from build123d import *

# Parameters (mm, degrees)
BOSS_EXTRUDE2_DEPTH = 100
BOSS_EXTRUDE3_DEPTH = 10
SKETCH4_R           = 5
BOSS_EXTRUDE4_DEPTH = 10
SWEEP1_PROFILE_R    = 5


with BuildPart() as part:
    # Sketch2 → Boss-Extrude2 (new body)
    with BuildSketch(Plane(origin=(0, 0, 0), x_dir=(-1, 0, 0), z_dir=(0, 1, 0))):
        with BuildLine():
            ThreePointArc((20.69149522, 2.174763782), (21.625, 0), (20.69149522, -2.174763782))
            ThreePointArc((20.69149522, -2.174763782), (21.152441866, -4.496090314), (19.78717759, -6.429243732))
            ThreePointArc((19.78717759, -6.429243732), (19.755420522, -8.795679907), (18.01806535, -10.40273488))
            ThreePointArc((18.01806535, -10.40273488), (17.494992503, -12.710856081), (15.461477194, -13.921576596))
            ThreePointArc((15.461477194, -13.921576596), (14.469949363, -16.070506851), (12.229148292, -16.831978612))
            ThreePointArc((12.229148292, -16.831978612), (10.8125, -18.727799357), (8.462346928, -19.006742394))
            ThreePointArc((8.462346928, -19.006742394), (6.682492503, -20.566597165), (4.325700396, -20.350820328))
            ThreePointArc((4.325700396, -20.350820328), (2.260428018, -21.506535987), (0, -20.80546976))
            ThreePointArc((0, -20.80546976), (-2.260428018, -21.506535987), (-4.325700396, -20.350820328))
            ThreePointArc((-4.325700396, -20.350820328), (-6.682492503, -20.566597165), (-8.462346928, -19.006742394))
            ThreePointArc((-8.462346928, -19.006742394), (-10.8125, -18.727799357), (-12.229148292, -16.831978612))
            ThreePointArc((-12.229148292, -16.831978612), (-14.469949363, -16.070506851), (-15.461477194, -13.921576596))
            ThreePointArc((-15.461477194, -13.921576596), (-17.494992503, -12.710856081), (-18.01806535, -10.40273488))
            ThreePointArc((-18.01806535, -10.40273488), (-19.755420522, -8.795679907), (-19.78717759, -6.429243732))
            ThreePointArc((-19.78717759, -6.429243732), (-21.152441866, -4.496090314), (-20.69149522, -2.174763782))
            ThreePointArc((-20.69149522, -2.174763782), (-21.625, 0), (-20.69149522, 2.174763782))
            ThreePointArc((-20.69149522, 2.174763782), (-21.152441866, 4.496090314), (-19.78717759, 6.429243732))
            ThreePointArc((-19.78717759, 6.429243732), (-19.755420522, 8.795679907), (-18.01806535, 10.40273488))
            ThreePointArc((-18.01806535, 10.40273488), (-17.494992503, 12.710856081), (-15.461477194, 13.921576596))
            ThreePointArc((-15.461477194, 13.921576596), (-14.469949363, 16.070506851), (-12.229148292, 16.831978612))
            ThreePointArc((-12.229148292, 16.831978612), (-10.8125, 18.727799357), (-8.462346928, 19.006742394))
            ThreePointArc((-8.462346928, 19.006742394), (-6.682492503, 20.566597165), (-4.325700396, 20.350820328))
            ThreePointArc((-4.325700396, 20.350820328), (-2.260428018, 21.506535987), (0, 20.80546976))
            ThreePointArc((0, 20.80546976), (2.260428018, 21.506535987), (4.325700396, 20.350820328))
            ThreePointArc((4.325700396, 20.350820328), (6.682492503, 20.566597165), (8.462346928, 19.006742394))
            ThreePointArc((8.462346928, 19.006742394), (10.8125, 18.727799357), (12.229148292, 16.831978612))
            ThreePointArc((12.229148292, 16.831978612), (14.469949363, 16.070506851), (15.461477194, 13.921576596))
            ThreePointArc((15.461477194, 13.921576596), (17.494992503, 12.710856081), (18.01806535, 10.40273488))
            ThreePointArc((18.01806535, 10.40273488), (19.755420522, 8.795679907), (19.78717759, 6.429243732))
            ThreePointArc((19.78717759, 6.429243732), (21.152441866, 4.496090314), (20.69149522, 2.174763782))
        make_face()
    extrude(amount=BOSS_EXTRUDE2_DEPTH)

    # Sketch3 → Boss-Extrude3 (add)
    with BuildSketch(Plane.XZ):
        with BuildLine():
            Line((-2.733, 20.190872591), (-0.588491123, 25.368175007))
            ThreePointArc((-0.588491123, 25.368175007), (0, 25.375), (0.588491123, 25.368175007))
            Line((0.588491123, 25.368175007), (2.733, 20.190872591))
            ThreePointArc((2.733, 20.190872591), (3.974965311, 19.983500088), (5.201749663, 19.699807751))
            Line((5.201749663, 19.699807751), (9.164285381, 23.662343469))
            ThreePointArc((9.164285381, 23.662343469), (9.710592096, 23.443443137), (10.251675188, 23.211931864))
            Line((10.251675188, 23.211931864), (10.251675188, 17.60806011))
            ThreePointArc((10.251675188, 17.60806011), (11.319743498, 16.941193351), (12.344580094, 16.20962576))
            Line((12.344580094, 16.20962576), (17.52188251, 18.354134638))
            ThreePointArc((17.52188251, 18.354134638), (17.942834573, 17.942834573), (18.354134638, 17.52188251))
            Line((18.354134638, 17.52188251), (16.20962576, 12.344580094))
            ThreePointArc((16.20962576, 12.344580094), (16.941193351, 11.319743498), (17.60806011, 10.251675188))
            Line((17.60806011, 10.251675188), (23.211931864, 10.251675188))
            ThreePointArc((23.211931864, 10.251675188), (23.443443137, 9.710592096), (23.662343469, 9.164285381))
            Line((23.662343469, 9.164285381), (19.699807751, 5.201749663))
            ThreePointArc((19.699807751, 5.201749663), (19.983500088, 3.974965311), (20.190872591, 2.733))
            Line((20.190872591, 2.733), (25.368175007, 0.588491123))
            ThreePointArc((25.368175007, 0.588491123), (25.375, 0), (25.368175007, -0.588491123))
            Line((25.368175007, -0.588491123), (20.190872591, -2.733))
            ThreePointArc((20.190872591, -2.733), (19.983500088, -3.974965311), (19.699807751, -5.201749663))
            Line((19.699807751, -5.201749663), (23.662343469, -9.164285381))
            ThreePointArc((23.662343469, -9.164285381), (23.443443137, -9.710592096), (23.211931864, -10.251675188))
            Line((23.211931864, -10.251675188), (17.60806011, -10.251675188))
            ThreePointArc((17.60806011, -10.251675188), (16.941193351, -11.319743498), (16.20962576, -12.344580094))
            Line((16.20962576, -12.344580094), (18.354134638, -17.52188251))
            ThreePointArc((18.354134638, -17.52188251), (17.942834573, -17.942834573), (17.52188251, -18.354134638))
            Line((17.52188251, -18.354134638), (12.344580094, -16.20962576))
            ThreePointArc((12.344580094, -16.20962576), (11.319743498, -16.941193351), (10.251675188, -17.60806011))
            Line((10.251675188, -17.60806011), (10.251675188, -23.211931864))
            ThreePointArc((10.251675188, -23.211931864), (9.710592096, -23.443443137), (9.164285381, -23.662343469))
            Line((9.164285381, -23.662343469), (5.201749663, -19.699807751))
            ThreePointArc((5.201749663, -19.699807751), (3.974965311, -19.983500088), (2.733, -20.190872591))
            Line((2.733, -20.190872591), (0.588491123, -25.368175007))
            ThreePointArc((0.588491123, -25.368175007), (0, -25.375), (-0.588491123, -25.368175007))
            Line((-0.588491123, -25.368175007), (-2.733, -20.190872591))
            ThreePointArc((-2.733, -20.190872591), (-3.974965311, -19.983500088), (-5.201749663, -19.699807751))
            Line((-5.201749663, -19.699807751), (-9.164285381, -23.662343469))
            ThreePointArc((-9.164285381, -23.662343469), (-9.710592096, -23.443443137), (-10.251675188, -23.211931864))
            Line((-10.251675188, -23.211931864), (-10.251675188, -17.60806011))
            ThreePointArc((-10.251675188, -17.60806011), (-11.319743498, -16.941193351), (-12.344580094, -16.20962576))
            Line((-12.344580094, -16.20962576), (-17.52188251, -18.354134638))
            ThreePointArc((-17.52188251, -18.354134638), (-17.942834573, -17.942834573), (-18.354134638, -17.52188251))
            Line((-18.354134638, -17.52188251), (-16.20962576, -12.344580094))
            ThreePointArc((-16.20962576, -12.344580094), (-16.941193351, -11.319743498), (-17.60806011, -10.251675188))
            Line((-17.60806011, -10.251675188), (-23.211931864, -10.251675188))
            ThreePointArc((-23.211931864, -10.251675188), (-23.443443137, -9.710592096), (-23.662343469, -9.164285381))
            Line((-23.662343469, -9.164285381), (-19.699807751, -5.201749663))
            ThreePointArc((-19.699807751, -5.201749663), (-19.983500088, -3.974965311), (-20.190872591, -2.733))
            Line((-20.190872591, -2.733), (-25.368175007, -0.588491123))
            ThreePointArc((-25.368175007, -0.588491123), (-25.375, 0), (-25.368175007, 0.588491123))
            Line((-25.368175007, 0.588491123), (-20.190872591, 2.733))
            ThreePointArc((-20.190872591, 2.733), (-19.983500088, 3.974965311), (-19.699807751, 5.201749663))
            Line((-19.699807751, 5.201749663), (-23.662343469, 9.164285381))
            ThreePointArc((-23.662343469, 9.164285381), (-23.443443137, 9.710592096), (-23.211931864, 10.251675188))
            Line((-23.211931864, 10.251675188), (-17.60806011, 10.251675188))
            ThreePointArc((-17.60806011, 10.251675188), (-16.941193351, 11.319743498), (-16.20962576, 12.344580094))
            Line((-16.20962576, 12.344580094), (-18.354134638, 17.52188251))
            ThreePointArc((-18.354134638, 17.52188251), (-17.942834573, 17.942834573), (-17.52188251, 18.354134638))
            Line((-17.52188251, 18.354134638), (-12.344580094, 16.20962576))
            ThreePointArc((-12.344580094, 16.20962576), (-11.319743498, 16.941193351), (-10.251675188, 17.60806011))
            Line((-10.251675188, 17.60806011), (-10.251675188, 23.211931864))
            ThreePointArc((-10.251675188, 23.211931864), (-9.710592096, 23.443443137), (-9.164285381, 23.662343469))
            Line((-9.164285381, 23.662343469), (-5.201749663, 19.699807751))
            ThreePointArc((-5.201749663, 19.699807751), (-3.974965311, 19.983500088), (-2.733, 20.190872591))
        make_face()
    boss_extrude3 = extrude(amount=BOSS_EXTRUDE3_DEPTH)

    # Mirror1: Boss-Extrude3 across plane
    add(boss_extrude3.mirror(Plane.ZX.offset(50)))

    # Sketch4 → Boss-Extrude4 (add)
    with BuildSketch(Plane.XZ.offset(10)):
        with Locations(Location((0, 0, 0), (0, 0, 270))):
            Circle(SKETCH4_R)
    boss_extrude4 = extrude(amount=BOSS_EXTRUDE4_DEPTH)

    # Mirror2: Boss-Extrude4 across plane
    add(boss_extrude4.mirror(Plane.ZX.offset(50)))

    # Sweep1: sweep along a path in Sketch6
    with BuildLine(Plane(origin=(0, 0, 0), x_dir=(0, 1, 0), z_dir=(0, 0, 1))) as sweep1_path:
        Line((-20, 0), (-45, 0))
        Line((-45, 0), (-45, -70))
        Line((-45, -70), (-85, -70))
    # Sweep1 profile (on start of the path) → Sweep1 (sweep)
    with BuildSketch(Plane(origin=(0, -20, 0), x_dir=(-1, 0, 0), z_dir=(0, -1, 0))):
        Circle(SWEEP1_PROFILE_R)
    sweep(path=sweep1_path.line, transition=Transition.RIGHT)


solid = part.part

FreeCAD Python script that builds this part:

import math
import FreeCAD as App
import Part
import Sketcher
Q = App.Units.Quantity

doc = App.newDocument("Part")
body = doc.addObject("PartDesign::Body", "Body")

# Sketch on XZ plane
sketch1 = body.newObject("Sketcher::SketchObject", "Sketch")
sketch1.AttachmentSupport = (doc.getObject("XZ_Plane"), [""])
sketch1.MapMode = "FlatFace"
sketch1.addGeometry([
    Part.ArcOfCircle(Part.Circle(App.Vector(-18.625, 0, 0), App.Vector(0, 0, 1), 3), math.radians(133.537702), math.radians(226.462298)),  # 0
    Part.ArcOfCircle(Part.Circle(App.Vector(-18.217999, 3.872355, 0), App.Vector(0, 0, 1), 3), math.radians(121.537702), math.radians(214.462298)),  # 1
    Part.ArcOfCircle(Part.Circle(App.Vector(-17.014784, 7.57547, 0), App.Vector(0, 0, 1), 3), math.radians(109.537702), math.radians(202.462298)),  # 2
    Part.ArcOfCircle(Part.Circle(App.Vector(-15.067942, 10.9475, 0), App.Vector(0, 0, 1), 3), math.radians(97.537702), math.radians(190.462298)),  # 3
    Part.ArcOfCircle(Part.Circle(App.Vector(-12.462558, 13.841072, 0), App.Vector(0, 0, 1), 3), math.radians(85.537702), math.radians(178.462298)),  # 4
    Part.ArcOfCircle(Part.Circle(App.Vector(-9.3125, 16.129723, 0), App.Vector(0, 0, 1), 3), math.radians(73.537702), math.radians(166.462298)),  # 5
    Part.ArcOfCircle(Part.Circle(App.Vector(-5.755442, 17.713428, 0), App.Vector(0, 0, 1), 3), math.radians(61.537702), math.radians(154.462298)),  # 6
    Part.ArcOfCircle(Part.Circle(App.Vector(-1.946843, 18.52297, 0), App.Vector(0, 0, 1), 3), math.radians(49.537702), math.radians(142.462298)),  # 7
    Part.ArcOfCircle(Part.Circle(App.Vector(1.946843, 18.52297, 0), App.Vector(0, 0, 1), 3), math.radians(37.537702), math.radians(130.462298)),  # 8
    Part.ArcOfCircle(Part.Circle(App.Vector(5.755442, 17.713428, 0), App.Vector(0, 0, 1), 3), math.radians(25.537702), math.radians(118.462298)),  # 9
    Part.ArcOfCircle(Part.Circle(App.Vector(9.3125, 16.129723, 0), App.Vector(0, 0, 1), 3), math.radians(13.537702), math.radians(106.462298)),  # 10
    Part.ArcOfCircle(Part.Circle(App.Vector(12.462558, 13.841072, 0), App.Vector(0, 0, 1), 3), math.radians(1.537702), math.radians(94.462298)),  # 11
    Part.ArcOfCircle(Part.Circle(App.Vector(15.067942, 10.9475, 0), App.Vector(0, 0, 1), 3), math.radians(-10.462298), math.radians(82.462298)),  # 12
    Part.ArcOfCircle(Part.Circle(App.Vector(17.014784, 7.57547, 0), App.Vector(0, 0, 1), 3), math.radians(-22.462298), math.radians(70.462298)),  # 13
    Part.ArcOfCircle(Part.Circle(App.Vector(18.217999, 3.872355, 0), App.Vector(0, 0, 1), 3), math.radians(-34.462298), math.radians(58.462298)),  # 14
    Part.ArcOfCircle(Part.Circle(App.Vector(18.625, 0, 0), App.Vector(0, 0, 1), 3), math.radians(-46.462298), math.radians(46.462298)),  # 15
    Part.ArcOfCircle(Part.Circle(App.Vector(18.217999, -3.872355, 0), App.Vector(0, 0, 1), 3), math.radians(-58.462298), math.radians(34.462298)),  # 16
    Part.ArcOfCircle(Part.Circle(App.Vector(17.014784, -7.57547, 0), App.Vector(0, 0, 1), 3), math.radians(-70.462298), math.radians(22.462298)),  # 17
    Part.ArcOfCircle(Part.Circle(App.Vector(15.067942, -10.9475, 0), App.Vector(0, 0, 1), 3), math.radians(-82.462298), math.radians(10.462298)),  # 18
    Part.ArcOfCircle(Part.Circle(App.Vector(12.462558, -13.841072, 0), App.Vector(0, 0, 1), 3), math.radians(-94.462298), math.radians(-1.537702)),  # 19
    Part.ArcOfCircle(Part.Circle(App.Vector(9.3125, -16.129723, 0), App.Vector(0, 0, 1), 3), math.radians(-106.462298), math.radians(-13.537702)),  # 20
    Part.ArcOfCircle(Part.Circle(App.Vector(5.755442, -17.713428, 0), App.Vector(0, 0, 1), 3), math.radians(-118.462298), math.radians(-25.537702)),  # 21
    Part.ArcOfCircle(Part.Circle(App.Vector(1.946843, -18.52297, 0), App.Vector(0, 0, 1), 3), math.radians(-130.462298), math.radians(-37.537702)),  # 22
    Part.ArcOfCircle(Part.Circle(App.Vector(-1.946843, -18.52297, 0), App.Vector(0, 0, 1), 3), math.radians(-142.462298), math.radians(-49.537702)),  # 23
    Part.ArcOfCircle(Part.Circle(App.Vector(-5.755442, -17.713428, 0), App.Vector(0, 0, 1), 3), math.radians(-154.462298), math.radians(-61.537702)),  # 24
    Part.ArcOfCircle(Part.Circle(App.Vector(-9.3125, -16.129723, 0), App.Vector(0, 0, 1), 3), math.radians(-166.462298), math.radians(-73.537702)),  # 25
    Part.ArcOfCircle(Part.Circle(App.Vector(-12.462558, -13.841072, 0), App.Vector(0, 0, 1), 3), math.radians(-178.462298), math.radians(-85.537702)),  # 26
    Part.ArcOfCircle(Part.Circle(App.Vector(-15.067942, -10.9475, 0), App.Vector(0, 0, 1), 3), math.radians(169.537702), math.radians(262.462298)),  # 27
    Part.ArcOfCircle(Part.Circle(App.Vector(-17.014784, -7.57547, 0), App.Vector(0, 0, 1), 3), math.radians(157.537702), math.radians(250.462298)),  # 28
    Part.ArcOfCircle(Part.Circle(App.Vector(-18.217999, -3.872355, 0), App.Vector(0, 0, 1), 3), math.radians(145.537702), math.radians(238.462298)),  # 29
], False)
sketch1.addConstraint([
    Sketcher.Constraint("Coincident", 0, 1, 1, 2),
    Sketcher.Constraint("Coincident", 1, 1, 2, 2),
    Sketcher.Constraint("Coincident", 2, 1, 3, 2),
    Sketcher.Constraint("Coincident", 3, 1, 4, 2),
    Sketcher.Constraint("Coincident", 4, 1, 5, 2),
    Sketcher.Constraint("Coincident", 5, 1, 6, 2),
    Sketcher.Constraint("Coincident", 6, 1, 7, 2),
    Sketcher.Constraint("Coincident", 7, 1, 8, 2),
    Sketcher.Constraint("Coincident", 8, 1, 9, 2),
    Sketcher.Constraint("Coincident", 9, 1, 10, 2),
    Sketcher.Constraint("Coincident", 10, 1, 11, 2),
    Sketcher.Constraint("Coincident", 11, 1, 12, 2),
    Sketcher.Constraint("Coincident", 12, 1, 13, 2),
    Sketcher.Constraint("Coincident", 13, 1, 14, 2),
    Sketcher.Constraint("Coincident", 14, 1, 15, 2),
    Sketcher.Constraint("Coincident", 15, 1, 16, 2),
    Sketcher.Constraint("Coincident", 16, 1, 17, 2),
    Sketcher.Constraint("Coincident", 17, 1, 18, 2),
    Sketcher.Constraint("Coincident", 18, 1, 19, 2),
    Sketcher.Constraint("Coincident", 19, 1, 20, 2),
    Sketcher.Constraint("Coincident", 20, 1, 21, 2),
    Sketcher.Constraint("Coincident", 21, 1, 22, 2),
    Sketcher.Constraint("Coincident", 22, 1, 23, 2),
    Sketcher.Constraint("Coincident", 23, 1, 24, 2),
    Sketcher.Constraint("Coincident", 24, 1, 25, 2),
    Sketcher.Constraint("Coincident", 25, 1, 26, 2),
    Sketcher.Constraint("Coincident", 26, 1, 27, 2),
    Sketcher.Constraint("Coincident", 27, 1, 28, 2),
    Sketcher.Constraint("Coincident", 28, 1, 29, 2),
    Sketcher.Constraint("Coincident", 29, 1, 0, 2),
    Sketcher.Constraint("Equal", 0, 1),
    Sketcher.Constraint("Equal", 1, 2),
    Sketcher.Constraint("Equal", 2, 3),
    Sketcher.Constraint("Equal", 3, 4),
    Sketcher.Constraint("Equal", 4, 5),
    Sketcher.Constraint("Equal", 5, 6),
    Sketcher.Constraint("Equal", 6, 7),
    Sketcher.Constraint("Equal", 7, 8),
    Sketcher.Constraint("Equal", 8, 9),
    Sketcher.Constraint("Equal", 9, 10),
    Sketcher.Constraint("Equal", 10, 11),
    Sketcher.Constraint("Equal", 11, 12),
    Sketcher.Constraint("Equal", 12, 13),
    Sketcher.Constraint("Equal", 13, 14),
    Sketcher.Constraint("Equal", 14, 15),
    Sketcher.Constraint("Equal", 15, 16),
    Sketcher.Constraint("Equal", 16, 17),
    Sketcher.Constraint("Equal", 17, 18),
    Sketcher.Constraint("Equal", 18, 19),
    Sketcher.Constraint("Equal", 19, 20),
    Sketcher.Constraint("Equal", 20, 21),
    Sketcher.Constraint("Equal", 21, 22),
    Sketcher.Constraint("Equal", 22, 23),
    Sketcher.Constraint("Equal", 23, 24),
    Sketcher.Constraint("Equal", 24, 25),
    Sketcher.Constraint("Equal", 25, 26),
    Sketcher.Constraint("Equal", 26, 27),
    Sketcher.Constraint("Equal", 27, 28),
    Sketcher.Constraint("Equal", 28, 29),
    Sketcher.Constraint("Symmetric", 0, 3, 15, 3, -1, 1),
    Sketcher.Constraint("Symmetric", 1, 3, 16, 3, -1, 1),
    Sketcher.Constraint("Symmetric", 2, 3, 17, 3, -1, 1),
    Sketcher.Constraint("Symmetric", 3, 3, 18, 3, -1, 1),
    Sketcher.Constraint("Symmetric", 4, 3, 19, 3, -1, 1),
    Sketcher.Constraint("Symmetric", 5, 3, 20, 3, -1, 1),
    Sketcher.Constraint("Symmetric", 6, 3, 21, 3, -1, 1),
    Sketcher.Constraint("Symmetric", 7, 3, 22, 3, -1, 1),
    Sketcher.Constraint("Symmetric", 8, 3, 23, 3, -1, 1),
    Sketcher.Constraint("Symmetric", 9, 3, 24, 3, -1, 1),
    Sketcher.Constraint("Symmetric", 10, 3, 25, 3, -1, 1),
    Sketcher.Constraint("Symmetric", 11, 3, 26, 3, -1, 1),
    Sketcher.Constraint("Symmetric", 12, 3, 27, 3, -1, 1),
    Sketcher.Constraint("Symmetric", 13, 3, 28, 3, -1, 1),
    Sketcher.Constraint("Symmetric", 14, 3, 29, 3, -1, 1),
    Sketcher.Constraint("Symmetric", 7, 3, 8, 3, -2),
    Sketcher.Constraint("Symmetric", 6, 3, 9, 3, -2),
    Sketcher.Constraint("Symmetric", 5, 3, 10, 3, -2),
    Sketcher.Constraint("Symmetric", 4, 3, 11, 3, -2),
    Sketcher.Constraint("Symmetric", 3, 3, 12, 3, -2),
    Sketcher.Constraint("Symmetric", 2, 3, 13, 3, -2),
    Sketcher.Constraint("Symmetric", 1, 3, 14, 3, -2),
    Sketcher.Constraint("PointOnObject", 0, 3, -1),
    Sketcher.Constraint("Radius", 0, Q("3 mm")),
    Sketcher.Constraint("DistanceX", 0, 3, -1, 1, Q("18.625 mm")),
    Sketcher.Constraint("DistanceX", 1, 3, -1, 1, Q("18.217999 mm")),
    Sketcher.Constraint("DistanceX", 4, 3, 9, 3, Q("18.217999 mm")),
    Sketcher.Constraint("DistanceX", 5, 3, 10, 3, Q("18.625 mm")),
    Sketcher.Constraint("DistanceY", -1, 1, 3, 3, Q("10.9475 mm")),
    Sketcher.Constraint("DistanceX", 6, 1, -1, 1, Q("4.3257 mm")),
    Sketcher.Constraint("DistanceX", 3, 3, 6, 3, Q("9.3125 mm")),
    Sketcher.Constraint("DistanceX", 6, 3, 7, 3, Q("3.808599 mm")),
    Sketcher.Constraint("DistanceY", 2, 3, 7, 3, Q("10.9475 mm")),
    Sketcher.Constraint("DistanceX", 4, 1, 5, 1, Q("3.766801 mm")),
    Sketcher.Constraint("DistanceY", 8, 3, 7, 1, Q("2.282499 mm")),
    Sketcher.Constraint("DistanceY", -1, 1, 2, 3, Q("7.57547 mm")),
    Sketcher.Constraint("DistanceX", 4, 1, -1, 1, Q("12.229148 mm")),
    Sketcher.Constraint("DistanceX", 2, 3, 7, 3, Q("15.067942 mm")),
    Sketcher.Constraint("DistanceY", 16, 3, 14, 3, Q("7.74471 mm")),
])
pad1 = body.newObject("PartDesign::Pad", "Pad")
pad1.Profile = sketch1
pad1.Length = 100
pad1.Reversed = True

# Sketch on XZ plane
sketch2 = body.newObject("Sketcher::SketchObject", "Sketch001")
sketch2.AttachmentSupport = (doc.getObject("XZ_Plane"), [""])
sketch2.MapMode = "FlatFace"
sketch2.addGeometry([
    Part.LineSegment(App.Vector(-0.588491, 25.368175, 0), App.Vector(-2.733, 20.190873, 0)),  # 0
    Part.ArcOfCircle(Part.Circle(App.Vector(0, 0, 0), App.Vector(0, 0, 1), 20.375), math.radians(97.708602), math.radians(104.791398)),  # 1
    Part.LineSegment(App.Vector(-5.20175, 19.699808, 0), App.Vector(-9.164285, 23.662343, 0)),  # 2
    Part.ArcOfCircle(Part.Circle(App.Vector(0.000001, -0.000002, 0), App.Vector(0, 0, 1), 25.375002), math.radians(111.17109), math.radians(113.828909)),  # 3
    Part.LineSegment(App.Vector(-10.251675, 23.211932, 0), App.Vector(-10.251675, 17.60806, 0)),  # 4
    Part.ArcOfCircle(Part.Circle(App.Vector(0, 0, 0), App.Vector(0, 0, 1), 20.375), math.radians(120.208602), math.radians(127.291398)),  # 5
    Part.LineSegment(App.Vector(-12.34458, 16.209626, 0), App.Vector(-17.521883, 18.354135, 0)),  # 6
    Part.ArcOfCircle(Part.Circle(App.Vector(-0.000001, 0.000001, 0), App.Vector(0, 0, 1), 25.374998), math.radians(133.67109), math.radians(136.32891)),  # 7
    Part.LineSegment(App.Vector(-18.354135, 17.521883, 0), App.Vector(-16.209626, 12.34458, 0)),  # 8
    Part.ArcOfCircle(Part.Circle(App.Vector(0, 0, 0), App.Vector(0, 0, 1), 20.375), math.radians(142.708602), math.radians(149.791398)),  # 9
    Part.LineSegment(App.Vector(-17.60806, 10.251675, 0), App.Vector(-23.211932, 10.251675, 0)),  # 10
    Part.ArcOfCircle(Part.Circle(App.Vector(0.000002, -0.000001, 0), App.Vector(0, 0, 1), 25.375002), math.radians(156.171091), math.radians(158.82891)),  # 11
    Part.LineSegment(App.Vector(-23.662343, 9.164285, 0), App.Vector(-19.699808, 5.20175, 0)),  # 12
    Part.ArcOfCircle(Part.Circle(App.Vector(0, 0, 0), App.Vector(0, 0, 1), 20.375), math.radians(165.208602), math.radians(172.291398)),  # 13
    Part.LineSegment(App.Vector(-20.190873, 2.733, 0), App.Vector(-25.368175, 0.588491, 0)),  # 14
    Part.ArcOfCircle(Part.Circle(App.Vector(-0.000001, 0, 0), App.Vector(0, 0, 1), 25.374999), math.radians(178.67109), math.radians(181.32891)),  # 15
    Part.LineSegment(App.Vector(-25.368175, -0.588491, 0), App.Vector(-20.190873, -2.733, 0)),  # 16
    Part.ArcOfCircle(Part.Circle(App.Vector(0, 0, 0), App.Vector(0, 0, 1), 20.375), math.radians(-172.291398), math.radians(-165.208602)),  # 17
    Part.LineSegment(App.Vector(-19.699808, -5.20175, 0), App.Vector(-23.662343, -9.164285, 0)),  # 18
    Part.ArcOfCircle(Part.Circle(App.Vector(0.000002, 0.000001, 0), App.Vector(0, 0, 1), 25.375002), math.radians(-158.82891), math.radians(-156.171091)),  # 19
    Part.LineSegment(App.Vector(-23.211932, -10.251675, 0), App.Vector(-17.60806, -10.251675, 0)),  # 20
    Part.ArcOfCircle(Part.Circle(App.Vector(0, 0, 0), App.Vector(0, 0, 1), 20.375), math.radians(-149.791398), math.radians(-142.708602)),  # 21
    Part.LineSegment(App.Vector(-16.209626, -12.34458, 0), App.Vector(-18.354135, -17.521883, 0)),  # 22
    Part.ArcOfCircle(Part.Circle(App.Vector(-0.000001, -0.000001, 0), App.Vector(0, 0, 1), 25.374998), math.radians(-136.32891), math.radians(-133.67109)),  # 23
    Part.LineSegment(App.Vector(-17.521883, -18.354135, 0), App.Vector(-12.34458, -16.209626, 0)),  # 24
    Part.ArcOfCircle(Part.Circle(App.Vector(0, 0, 0), App.Vector(0, 0, 1), 20.375), math.radians(-127.291398), math.radians(-120.208602)),  # 25
    Part.LineSegment(App.Vector(-10.251675, -17.60806, 0), App.Vector(-10.251675, -23.211932, 0)),  # 26
    Part.ArcOfCircle(Part.Circle(App.Vector(0.000001, 0.000002, 0), App.Vector(0, 0, 1), 25.375002), math.radians(-113.828909), math.radians(-111.17109)),  # 27
    Part.LineSegment(App.Vector(-9.164285, -23.662343, 0), App.Vector(-5.20175, -19.699808, 0)),  # 28
    Part.ArcOfCircle(Part.Circle(App.Vector(0, 0, 0), App.Vector(0, 0, 1), 20.375), math.radians(-104.791398), math.radians(-97.708602)),  # 29
    Part.LineSegment(App.Vector(-2.733, -20.190873, 0), App.Vector(-0.588491, -25.368175, 0)),  # 30
    Part.ArcOfCircle(Part.Circle(App.Vector(0, -0.000001, 0), App.Vector(0, 0, 1), 25.374999), math.radians(-91.32891), math.radians(-88.67109)),  # 31
    Part.LineSegment(App.Vector(0.588491, -25.368175, 0), App.Vector(2.733, -20.190873, 0)),  # 32
    Part.ArcOfCircle(Part.Circle(App.Vector(0, 0, 0), App.Vector(0, 0, 1), 20.375), math.radians(-82.291398), math.radians(-75.208602)),  # 33
    Part.LineSegment(App.Vector(5.20175, -19.699808, 0), App.Vector(9.164285, -23.662343, 0)),  # 34
    Part.ArcOfCircle(Part.Circle(App.Vector(-0.000001, 0.000002, 0), App.Vector(0, 0, 1), 25.375002), math.radians(-68.82891), math.radians(-66.171091)),  # 35
    Part.LineSegment(App.Vector(10.251675, -23.211932, 0), App.Vector(10.251675, -17.60806, 0)),  # 36
    Part.ArcOfCircle(Part.Circle(App.Vector(0, 0, 0), App.Vector(0, 0, 1), 20.375), math.radians(-59.791398), math.radians(-52.708602)),  # 37
    Part.LineSegment(App.Vector(12.34458, -16.209626, 0), App.Vector(17.521883, -18.354135, 0)),  # 38
    Part.ArcOfCircle(Part.Circle(App.Vector(0.000001, -0.000001, 0), App.Vector(0, 0, 1), 25.374998), math.radians(-46.32891), math.radians(-43.67109)),  # 39
    Part.LineSegment(App.Vector(18.354135, -17.521883, 0), App.Vector(16.209626, -12.34458, 0)),  # 40
    Part.ArcOfCircle(Part.Circle(App.Vector(0, 0, 0), App.Vector(0, 0, 1), 20.375), math.radians(-37.291398), math.radians(-30.208602)),  # 41
    Part.LineSegment(App.Vector(17.60806, -10.251675, 0), App.Vector(23.211932, -10.251675, 0)),  # 42
    Part.ArcOfCircle(Part.Circle(App.Vector(-0.000002, 0.000001, 0), App.Vector(0, 0, 1), 25.375002), math.radians(-23.828909), math.radians(-21.17109)),  # 43
    Part.LineSegment(App.Vector(23.662343, -9.164285, 0), App.Vector(19.699808, -5.20175, 0)),  # 44
    Part.ArcOfCircle(Part.Circle(App.Vector(0, 0, 0), App.Vector(0, 0, 1), 20.375), math.radians(-14.791398), math.radians(-7.708602)),  # 45
    Part.LineSegment(App.Vector(20.190873, -2.733, 0), App.Vector(25.368175, -0.588491, 0)),  # 46
    Part.ArcOfCircle(Part.Circle(App.Vector(0.000001, 0, 0), App.Vector(0, 0, 1), 25.374999), math.radians(-1.32891), math.radians(1.32891)),  # 47
    Part.LineSegment(App.Vector(25.368175, 0.588491, 0), App.Vector(20.190873, 2.733, 0)),  # 48
    Part.ArcOfCircle(Part.Circle(App.Vector(0, 0, 0), App.Vector(0, 0, 1), 20.375), math.radians(7.708602), math.radians(14.791398)),  # 49
    Part.LineSegment(App.Vector(19.699808, 5.20175, 0), App.Vector(23.662343, 9.164285, 0)),  # 50
    Part.ArcOfCircle(Part.Circle(App.Vector(-0.000002, -0.000001, 0), App.Vector(0, 0, 1), 25.375002), math.radians(21.17109), math.radians(23.828909)),  # 51
    Part.LineSegment(App.Vector(23.211932, 10.251675, 0), App.Vector(17.60806, 10.251675, 0)),  # 52
    Part.ArcOfCircle(Part.Circle(App.Vector(0, 0, 0), App.Vector(0, 0, 1), 20.375), math.radians(30.208602), math.radians(37.291398)),  # 53
    Part.LineSegment(App.Vector(16.209626, 12.34458, 0), App.Vector(18.354135, 17.521883, 0)),  # 54
    Part.ArcOfCircle(Part.Circle(App.Vector(0.000001, 0.000001, 0), App.Vector(0, 0, 1), 25.374998), math.radians(43.67109), math.radians(46.32891)),  # 55
    Part.LineSegment(App.Vector(17.521883, 18.354135, 0), App.Vector(12.34458, 16.209626, 0)),  # 56
    Part.ArcOfCircle(Part.Circle(App.Vector(0, 0, 0), App.Vector(0, 0, 1), 20.375), math.radians(52.708602), math.radians(59.791398)),  # 57
    Part.LineSegment(App.Vector(10.251675, 17.60806, 0), App.Vector(10.251675, 23.211932, 0)),  # 58
    Part.ArcOfCircle(Part.Circle(App.Vector(-0.000001, -0.000002, 0), App.Vector(0, 0, 1), 25.375002), math.radians(66.171091), math.radians(68.82891)),  # 59
    Part.LineSegment(App.Vector(9.164285, 23.662343, 0), App.Vector(5.20175, 19.699808, 0)),  # 60
    Part.ArcOfCircle(Part.Circle(App.Vector(0, 0, 0), App.Vector(0, 0, 1), 20.375), math.radians(75.208602), math.radians(82.291398)),  # 61
    Part.LineSegment(App.Vector(2.733, 20.190873, 0), App.Vector(0.588491, 25.368175, 0)),  # 62
    Part.ArcOfCircle(Part.Circle(App.Vector(0, 0.000001, 0), App.Vector(0, 0, 1), 25.374999), math.radians(88.67109), math.radians(91.32891)),  # 63
], False)
sketch2.addConstraint([
    Sketcher.Constraint("Coincident", 0, 2, 1, 1),
    Sketcher.Constraint("Coincident", 1, 2, 2, 1),
    Sketcher.Constraint("Coincident", 2, 2, 3, 1),
    Sketcher.Constraint("Coincident", 3, 2, 4, 1),
    Sketcher.Constraint("Coincident", 4, 2, 5, 1),
    Sketcher.Constraint("Coincident", 5, 2, 6, 1),
    Sketcher.Constraint("Coincident", 6, 2, 7, 1),
    Sketcher.Constraint("Coincident", 7, 2, 8, 1),
    Sketcher.Constraint("Coincident", 8, 2, 9, 1),
    Sketcher.Constraint("Coincident", 9, 2, 10, 1),
    Sketcher.Constraint("Coincident", 10, 2, 11, 1),
    Sketcher.Constraint("Coincident", 11, 2, 12, 1),
    Sketcher.Constraint("Coincident", 12, 2, 13, 1),
    Sketcher.Constraint("Coincident", 13, 2, 14, 1),
    Sketcher.Constraint("Coincident", 14, 2, 15, 1),
    Sketcher.Constraint("Coincident", 15, 2, 16, 1),
    Sketcher.Constraint("Coincident", 16, 2, 17, 1),
    Sketcher.Constraint("Coincident", 17, 2, 18, 1),
    Sketcher.Constraint("Coincident", 18, 2, 19, 1),
    Sketcher.Constraint("Coincident", 19, 2, 20, 1),
    Sketcher.Constraint("Coincident", 20, 2, 21, 1),
    Sketcher.Constraint("Coincident", 21, 2, 22, 1),
    Sketcher.Constraint("Coincident", 22, 2, 23, 1),
    Sketcher.Constraint("Coincident", 23, 2, 24, 1),
    Sketcher.Constraint("Coincident", 24, 2, 25, 1),
    Sketcher.Constraint("Coincident", 25, 2, 26, 1),
    Sketcher.Constraint("Coincident", 26, 2, 27, 1),
    Sketcher.Constraint("Coincident", 27, 2, 28, 1),
    Sketcher.Constraint("Coincident", 28, 2, 29, 1),
    Sketcher.Constraint("Coincident", 29, 2, 30, 1),
    Sketcher.Constraint("Coincident", 30, 2, 31, 1),
    Sketcher.Constraint("Coincident", 31, 2, 32, 1),
    Sketcher.Constraint("Coincident", 32, 2, 33, 1),
    Sketcher.Constraint("Coincident", 33, 2, 34, 1),
    Sketcher.Constraint("Coincident", 34, 2, 35, 1),
    Sketcher.Constraint("Coincident", 35, 2, 36, 1),
    Sketcher.Constraint("Coincident", 36, 2, 37, 1),
    Sketcher.Constraint("Coincident", 37, 2, 38, 1),
    Sketcher.Constraint("Coincident", 38, 2, 39, 1),
    Sketcher.Constraint("Coincident", 39, 2, 40, 1),
    Sketcher.Constraint("Coincident", 40, 2, 41, 1),
    Sketcher.Constraint("Coincident", 41, 2, 42, 1),
    Sketcher.Constraint("Coincident", 42, 2, 43, 1),
    Sketcher.Constraint("Coincident", 43, 2, 44, 1),
    Sketcher.Constraint("Coincident", 44, 2, 45, 1),
    Sketcher.Constraint("Coincident", 45, 2, 46, 1),
    Sketcher.Constraint("Coincident", 46, 2, 47, 1),
    Sketcher.Constraint("Coincident", 47, 2, 48, 1),
    Sketcher.Constraint("Coincident", 48, 2, 49, 1),
    Sketcher.Constraint("Coincident", 49, 2, 50, 1),
    Sketcher.Constraint("Coincident", 50, 2, 51, 1),
    Sketcher.Constraint("Coincident", 51, 2, 52, 1),
    Sketcher.Constraint("Coincident", 52, 2, 53, 1),
    Sketcher.Constraint("Coincident", 53, 2, 54, 1),
    Sketcher.Constraint("Coincident", 54, 2, 55, 1),
    Sketcher.Constraint("Coincident", 55, 2, 56, 1),
    Sketcher.Constraint("Coincident", 56, 2, 57, 1),
    Sketcher.Constraint("Coincident", 57, 2, 58, 1),
    Sketcher.Constraint("Coincident", 58, 2, 59, 1),
    Sketcher.Constraint("Coincident", 59, 2, 60, 1),
    Sketcher.Constraint("Coincident", 60, 2, 61, 1),
    Sketcher.Constraint("Coincident", 61, 2, 62, 1),
    Sketcher.Constraint("Coincident", 62, 2, 63, 1),
    Sketcher.Constraint("Coincident", 63, 2, 0, 1),
    Sketcher.Constraint("Vertical", 4),
    Sketcher.Constraint("Horizontal", 10),
    Sketcher.Constraint("Horizontal", 20),
    Sketcher.Constraint("Vertical", 26),
    Sketcher.Constraint("Vertical", 36),
    Sketcher.Constraint("Horizontal", 42),
    Sketcher.Constraint("Horizontal", 52),
    Sketcher.Constraint("Vertical", 58),
    Sketcher.Constraint("Coincident", 1, 3, -1, 1),
    Sketcher.Constraint("Coincident", 3, 3, -1, 1),
    Sketcher.Constraint("Coincident", 5, 3, -1, 1),
    Sketcher.Constraint("Coincident", 7, 3, -1, 1),
    Sketcher.Constraint("Coincident", 9, 3, -1, 1),
    Sketcher.Constraint("Coincident", 11, 3, -1, 1),
    Sketcher.Constraint("Coincident", 13, 3, -1, 1),
    Sketcher.Constraint("Coincident", 15, 3, -1, 1),
    Sketcher.Constraint("Coincident", 17, 3, -1, 1),
    Sketcher.Constraint("Coincident", 19, 3, -1, 1),
    Sketcher.Constraint("Coincident", 21, 3, -1, 1),
    Sketcher.Constraint("Coincident", 23, 3, -1, 1),
    Sketcher.Constraint("Coincident", 25, 3, -1, 1),
    Sketcher.Constraint("Coincident", 27, 3, -1, 1),
    Sketcher.Constraint("Coincident", 29, 3, -1, 1),
    Sketcher.Constraint("Coincident", 31, 3, -1, 1),
    Sketcher.Constraint("Coincident", 33, 3, -1, 1),
    Sketcher.Constraint("Coincident", 35, 3, -1, 1),
    Sketcher.Constraint("Coincident", 37, 3, -1, 1),
    Sketcher.Constraint("Coincident", 39, 3, -1, 1),
    Sketcher.Constraint("Coincident", 41, 3, -1, 1),
    Sketcher.Constraint("Coincident", 43, 3, -1, 1),
    Sketcher.Constraint("Coincident", 45, 3, -1, 1),
    Sketcher.Constraint("Coincident", 47, 3, -1, 1),
    Sketcher.Constraint("Coincident", 49, 3, -1, 1),
    Sketcher.Constraint("Coincident", 51, 3, -1, 1),
    Sketcher.Constraint("Coincident", 53, 3, -1, 1),
    Sketcher.Constraint("Coincident", 55, 3, -1, 1),
    Sketcher.Constraint("Coincident", 57, 3, -1, 1),
    Sketcher.Constraint("Coincident", 59, 3, -1, 1),
    Sketcher.Constraint("Coincident", 61, 3, -1, 1),
    Sketcher.Constraint("Coincident", 63, 3, -1, 1),
    Sketcher.Constraint("Radius", 1, Q("20.375 mm")),
    Sketcher.Constraint("Radius", 5, Q("20.375 mm")),
    Sketcher.Constraint("Radius", 7, Q("25.374998 mm")),
    Sketcher.Constraint("Radius", 9, Q("20.375 mm")),
    Sketcher.Constraint("Radius", 13, Q("20.375 mm")),
    Sketcher.Constraint("Radius", 15, Q("25.374999 mm")),
    Sketcher.Constraint("Radius", 17, Q("20.375 mm")),
    Sketcher.Constraint("Radius", 21, Q("20.375 mm")),
    Sketcher.Constraint("Radius", 23, Q("25.374998 mm")),
    Sketcher.Constraint("Radius", 25, Q("20.375 mm")),
    Sketcher.Constraint("Radius", 29, Q("20.375 mm")),
    Sketcher.Constraint("Radius", 31, Q("25.374999 mm")),
    Sketcher.Constraint("Radius", 33, Q("20.375 mm")),
    Sketcher.Constraint("Radius", 37, Q("20.375 mm")),
    Sketcher.Constraint("Radius", 39, Q("25.374998 mm")),
    Sketcher.Constraint("Radius", 41, Q("20.375 mm")),
    Sketcher.Constraint("Radius", 45, Q("20.375 mm")),
    Sketcher.Constraint("Radius", 47, Q("25.374999 mm")),
    Sketcher.Constraint("Radius", 49, Q("20.375 mm")),
    Sketcher.Constraint("Radius", 53, Q("20.375 mm")),
    Sketcher.Constraint("Radius", 55, Q("25.374998 mm")),
    Sketcher.Constraint("Radius", 57, Q("20.375 mm")),
    Sketcher.Constraint("Radius", 61, Q("20.375 mm")),
    Sketcher.Constraint("Radius", 63, Q("25.374999 mm")),
    Sketcher.Constraint("DistanceX", 0, 2, -1, 1, Q("2.733 mm")),
    Sketcher.Constraint("DistanceY", -1, 1, 13, 2, Q("2.733 mm")),
    Sketcher.Constraint("DistanceY", 16, 2, -1, 1, Q("2.733 mm")),
    Sketcher.Constraint("DistanceX", 29, 2, -1, 1, Q("2.733 mm")),
    Sketcher.Constraint("DistanceX", -1, 1, 32, 2, Q("2.733 mm")),
    Sketcher.Constraint("DistanceY", 45, 2, -1, 1, Q("2.733 mm")),
    Sketcher.Constraint("DistanceY", -1, 1, 48, 2, Q("2.733 mm")),
    Sketcher.Constraint("DistanceX", -1, 1, 61, 2, Q("2.733 mm")),
    Sketcher.Constraint("Radius", 3, Q("25.375002 mm")),
    Sketcher.Constraint("Radius", 11, Q("25.375002 mm")),
    Sketcher.Constraint("Radius", 19, Q("25.375002 mm")),
    Sketcher.Constraint("Radius", 27, Q("25.375002 mm")),
    Sketcher.Constraint("Radius", 35, Q("25.375002 mm")),
    Sketcher.Constraint("Radius", 43, Q("25.375002 mm")),
    Sketcher.Constraint("Radius", 51, Q("25.375002 mm")),
    Sketcher.Constraint("Radius", 59, Q("25.375002 mm")),
    Sketcher.Constraint("DistanceX", 10, 2, 10, 1, Q("5.603872 mm")),
    Sketcher.Constraint("DistanceX", 20, 1, 20, 2, Q("5.603872 mm")),
    Sketcher.Constraint("DistanceX", 42, 1, 42, 2, Q("5.603872 mm")),
    Sketcher.Constraint("DistanceX", 52, 2, 52, 1, Q("5.603872 mm")),
    Sketcher.Constraint("DistanceY", 4, 2, 4, 1, Q("5.603872 mm")),
    Sketcher.Constraint("DistanceY", 26, 2, 26, 1, Q("5.603872 mm")),
    Sketcher.Constraint("DistanceY", 36, 1, 36, 2, Q("5.603872 mm")),
    Sketcher.Constraint("DistanceY", 58, 1, 58, 2, Q("5.603872 mm")),
    Sketcher.Constraint("Distance", 0, Q("5.603872 mm")),
    Sketcher.Constraint("Distance", 2, Q("5.603872 mm")),
    Sketcher.Constraint("Distance", 6, Q("5.603872 mm")),
    Sketcher.Constraint("Distance", 8, Q("5.603872 mm")),
    Sketcher.Constraint("Distance", 12, Q("5.603872 mm")),
    Sketcher.Constraint("Distance", 14, Q("5.603872 mm")),
    Sketcher.Constraint("Distance", 16, Q("5.603872 mm")),
    Sketcher.Constraint("Distance", 18, Q("5.603872 mm")),
    Sketcher.Constraint("Distance", 22, Q("5.603872 mm")),
    Sketcher.Constraint("Distance", 24, Q("5.603872 mm")),
    Sketcher.Constraint("Distance", 28, Q("5.603872 mm")),
    Sketcher.Constraint("Distance", 30, Q("5.603872 mm")),
    Sketcher.Constraint("Distance", 32, Q("5.603872 mm")),
    Sketcher.Constraint("Distance", 34, Q("5.603872 mm")),
    Sketcher.Constraint("Distance", 38, Q("5.603872 mm")),
    Sketcher.Constraint("Distance", 40, Q("5.603872 mm")),
    Sketcher.Constraint("Distance", 44, Q("5.603872 mm")),
    Sketcher.Constraint("Distance", 46, Q("5.603872 mm")),
    Sketcher.Constraint("Distance", 48, Q("5.603872 mm")),
    Sketcher.Constraint("Distance", 50, Q("5.603872 mm")),
    Sketcher.Constraint("Distance", 54, Q("5.603872 mm")),
    Sketcher.Constraint("Distance", 56, Q("5.603872 mm")),
    Sketcher.Constraint("Distance", 60, Q("5.603872 mm")),
    Sketcher.Constraint("Distance", 62, Q("5.603872 mm")),
    Sketcher.Constraint("DistanceX", 1, 2, -1, 1, Q("5.20175 mm")),
    Sketcher.Constraint("DistanceX", 5, 2, -1, 1, Q("12.34458 mm")),
    Sketcher.Constraint("DistanceY", -1, 1, 8, 2, Q("12.34458 mm")),
    Sketcher.Constraint("DistanceY", -1, 1, 12, 2, Q("5.20175 mm")),
    Sketcher.Constraint("DistanceY", 17, 2, -1, 1, Q("5.20175 mm")),
    Sketcher.Constraint("DistanceY", 21, 2, -1, 1, Q("12.34458 mm")),
    Sketcher.Constraint("DistanceX", 24, 2, -1, 1, Q("12.34458 mm")),
    Sketcher.Constraint("DistanceX", 28, 2, -1, 1, Q("5.20175 mm")),
    Sketcher.Constraint("DistanceX", -1, 1, 33, 2, Q("5.20175 mm")),
    Sketcher.Constraint("DistanceX", -1, 1, 37, 2, Q("12.34458 mm")),
    Sketcher.Constraint("DistanceY", 40, 2, -1, 1, Q("12.34458 mm")),
    Sketcher.Constraint("DistanceY", 44, 2, -1, 1, Q("5.20175 mm")),
    Sketcher.Constraint("DistanceY", -1, 1, 49, 2, Q("5.20175 mm")),
    Sketcher.Constraint("DistanceY", -1, 1, 53, 2, Q("12.34458 mm")),
    Sketcher.Constraint("DistanceX", -1, 1, 56, 2, Q("12.34458 mm")),
    Sketcher.Constraint("DistanceX", -1, 1, 60, 2, Q("5.20175 mm")),
])
pad2 = body.newObject("PartDesign::Pad", "Pad001")
pad2.Profile = sketch2
pad2.Length = 10
doc.recompute()

datumplane = body.newObject("PartDesign::Plane", "DatumPlane")
datumplane.AttachmentSupport = (doc.getObject("XZ_Plane"), [""])
datumplane.MapMode = "FlatFace"
datumplane.AttachmentOffset = App.Placement(App.Vector(0, 0, -50), App.Rotation())
mirrored = body.newObject("PartDesign::Mirrored", "Mirrored")
mirrored.Originals = [pad2]
mirrored.MirrorPlane = (datumplane, [""])
body.Tip = mirrored

# Sketch on XZ plane
sketch3 = body.newObject("Sketcher::SketchObject", "Sketch002")
sketch3.AttachmentSupport = (doc.getObject("XZ_Plane"), [""])
sketch3.MapMode = "FlatFace"
sketch3.AttachmentOffset = App.Placement(App.Vector(0, 0, 10), App.Rotation())
sketch3.addGeometry(Part.Circle(App.Vector(0, 0, 0), App.Vector(0, 0, 1), 5), False)
sketch3.addConstraint([
    Sketcher.Constraint("Coincident", 0, 3, -1, 1),
    Sketcher.Constraint("Diameter", 0, Q("10 mm")),
])
pad3 = body.newObject("PartDesign::Pad", "Pad002")
pad3.Profile = sketch3
pad3.Length = 10
doc.recompute()

datumplane2 = body.newObject("PartDesign::Plane", "DatumPlane001")
datumplane2.AttachmentSupport = (doc.getObject("XZ_Plane"), [""])
datumplane2.MapMode = "FlatFace"
datumplane2.AttachmentOffset = App.Placement(App.Vector(0, 0, -50), App.Rotation())
mirrored2 = body.newObject("PartDesign::Mirrored", "Mirrored001")
mirrored2.Originals = [pad3]
mirrored2.MirrorPlane = (datumplane2, [""])
body.Tip = mirrored2

# Sketch on XZ plane
sketch4 = body.newObject("Sketcher::SketchObject", "Sketch003")
sketch4.AttachmentSupport = (doc.getObject("XZ_Plane"), [""])
sketch4.MapMode = "FlatFace"
sketch4.AttachmentOffset = App.Placement(App.Vector(0, 0, 20), App.Rotation())
sketch4.addGeometry(Part.Circle(App.Vector(0, 0, 0), App.Vector(0, 0, 1), 5), False)
sketch4.addConstraint([
    Sketcher.Constraint("Coincident", 0, 3, -1, 1),
    Sketcher.Constraint("Diameter", 0, Q("10 mm")),
])

# Sketch on XY plane
sketch5 = body.newObject("Sketcher::SketchObject", "Sketch004")
sketch5.AttachmentSupport = (doc.getObject("XY_Plane"), [""])
sketch5.MapMode = "FlatFace"
sketch5.addGeometry([
    Part.LineSegment(App.Vector(0, -20, 0), App.Vector(0, -45, 0)),
    Part.LineSegment(App.Vector(0, -45, 0), App.Vector(70, -45, 0)),
    Part.LineSegment(App.Vector(70, -45, 0), App.Vector(70, -85, 0)),
], False)
sketch5.addConstraint([
    Sketcher.Constraint("Coincident", 0, 2, 1, 1),
    Sketcher.Constraint("Coincident", 1, 2, 2, 1),
    Sketcher.Constraint("Vertical", 0),
    Sketcher.Constraint("Horizontal", 1),
    Sketcher.Constraint("Vertical", 2),
    Sketcher.Constraint("PointOnObject", 0, 1, -2),
    Sketcher.Constraint("DistanceX", 1, 1, 1, 2, Q("70 mm")),
    Sketcher.Constraint("DistanceY", 0, 2, 0, 1, Q("25 mm")),
    Sketcher.Constraint("DistanceY", 2, 2, 2, 1, Q("40 mm")),
    Sketcher.Constraint("DistanceY", 0, 1, -1, 1, Q("20 mm")),
])
doc.recompute()

additivepipe = body.newObject("PartDesign::AdditivePipe", "AdditivePipe")
additivepipe.Profile = sketch4
additivepipe.Spine = (sketch5, ["Edge1", "Edge2", "Edge3"])
additivepipe.Transition = "Right corner"

doc.recompute()
